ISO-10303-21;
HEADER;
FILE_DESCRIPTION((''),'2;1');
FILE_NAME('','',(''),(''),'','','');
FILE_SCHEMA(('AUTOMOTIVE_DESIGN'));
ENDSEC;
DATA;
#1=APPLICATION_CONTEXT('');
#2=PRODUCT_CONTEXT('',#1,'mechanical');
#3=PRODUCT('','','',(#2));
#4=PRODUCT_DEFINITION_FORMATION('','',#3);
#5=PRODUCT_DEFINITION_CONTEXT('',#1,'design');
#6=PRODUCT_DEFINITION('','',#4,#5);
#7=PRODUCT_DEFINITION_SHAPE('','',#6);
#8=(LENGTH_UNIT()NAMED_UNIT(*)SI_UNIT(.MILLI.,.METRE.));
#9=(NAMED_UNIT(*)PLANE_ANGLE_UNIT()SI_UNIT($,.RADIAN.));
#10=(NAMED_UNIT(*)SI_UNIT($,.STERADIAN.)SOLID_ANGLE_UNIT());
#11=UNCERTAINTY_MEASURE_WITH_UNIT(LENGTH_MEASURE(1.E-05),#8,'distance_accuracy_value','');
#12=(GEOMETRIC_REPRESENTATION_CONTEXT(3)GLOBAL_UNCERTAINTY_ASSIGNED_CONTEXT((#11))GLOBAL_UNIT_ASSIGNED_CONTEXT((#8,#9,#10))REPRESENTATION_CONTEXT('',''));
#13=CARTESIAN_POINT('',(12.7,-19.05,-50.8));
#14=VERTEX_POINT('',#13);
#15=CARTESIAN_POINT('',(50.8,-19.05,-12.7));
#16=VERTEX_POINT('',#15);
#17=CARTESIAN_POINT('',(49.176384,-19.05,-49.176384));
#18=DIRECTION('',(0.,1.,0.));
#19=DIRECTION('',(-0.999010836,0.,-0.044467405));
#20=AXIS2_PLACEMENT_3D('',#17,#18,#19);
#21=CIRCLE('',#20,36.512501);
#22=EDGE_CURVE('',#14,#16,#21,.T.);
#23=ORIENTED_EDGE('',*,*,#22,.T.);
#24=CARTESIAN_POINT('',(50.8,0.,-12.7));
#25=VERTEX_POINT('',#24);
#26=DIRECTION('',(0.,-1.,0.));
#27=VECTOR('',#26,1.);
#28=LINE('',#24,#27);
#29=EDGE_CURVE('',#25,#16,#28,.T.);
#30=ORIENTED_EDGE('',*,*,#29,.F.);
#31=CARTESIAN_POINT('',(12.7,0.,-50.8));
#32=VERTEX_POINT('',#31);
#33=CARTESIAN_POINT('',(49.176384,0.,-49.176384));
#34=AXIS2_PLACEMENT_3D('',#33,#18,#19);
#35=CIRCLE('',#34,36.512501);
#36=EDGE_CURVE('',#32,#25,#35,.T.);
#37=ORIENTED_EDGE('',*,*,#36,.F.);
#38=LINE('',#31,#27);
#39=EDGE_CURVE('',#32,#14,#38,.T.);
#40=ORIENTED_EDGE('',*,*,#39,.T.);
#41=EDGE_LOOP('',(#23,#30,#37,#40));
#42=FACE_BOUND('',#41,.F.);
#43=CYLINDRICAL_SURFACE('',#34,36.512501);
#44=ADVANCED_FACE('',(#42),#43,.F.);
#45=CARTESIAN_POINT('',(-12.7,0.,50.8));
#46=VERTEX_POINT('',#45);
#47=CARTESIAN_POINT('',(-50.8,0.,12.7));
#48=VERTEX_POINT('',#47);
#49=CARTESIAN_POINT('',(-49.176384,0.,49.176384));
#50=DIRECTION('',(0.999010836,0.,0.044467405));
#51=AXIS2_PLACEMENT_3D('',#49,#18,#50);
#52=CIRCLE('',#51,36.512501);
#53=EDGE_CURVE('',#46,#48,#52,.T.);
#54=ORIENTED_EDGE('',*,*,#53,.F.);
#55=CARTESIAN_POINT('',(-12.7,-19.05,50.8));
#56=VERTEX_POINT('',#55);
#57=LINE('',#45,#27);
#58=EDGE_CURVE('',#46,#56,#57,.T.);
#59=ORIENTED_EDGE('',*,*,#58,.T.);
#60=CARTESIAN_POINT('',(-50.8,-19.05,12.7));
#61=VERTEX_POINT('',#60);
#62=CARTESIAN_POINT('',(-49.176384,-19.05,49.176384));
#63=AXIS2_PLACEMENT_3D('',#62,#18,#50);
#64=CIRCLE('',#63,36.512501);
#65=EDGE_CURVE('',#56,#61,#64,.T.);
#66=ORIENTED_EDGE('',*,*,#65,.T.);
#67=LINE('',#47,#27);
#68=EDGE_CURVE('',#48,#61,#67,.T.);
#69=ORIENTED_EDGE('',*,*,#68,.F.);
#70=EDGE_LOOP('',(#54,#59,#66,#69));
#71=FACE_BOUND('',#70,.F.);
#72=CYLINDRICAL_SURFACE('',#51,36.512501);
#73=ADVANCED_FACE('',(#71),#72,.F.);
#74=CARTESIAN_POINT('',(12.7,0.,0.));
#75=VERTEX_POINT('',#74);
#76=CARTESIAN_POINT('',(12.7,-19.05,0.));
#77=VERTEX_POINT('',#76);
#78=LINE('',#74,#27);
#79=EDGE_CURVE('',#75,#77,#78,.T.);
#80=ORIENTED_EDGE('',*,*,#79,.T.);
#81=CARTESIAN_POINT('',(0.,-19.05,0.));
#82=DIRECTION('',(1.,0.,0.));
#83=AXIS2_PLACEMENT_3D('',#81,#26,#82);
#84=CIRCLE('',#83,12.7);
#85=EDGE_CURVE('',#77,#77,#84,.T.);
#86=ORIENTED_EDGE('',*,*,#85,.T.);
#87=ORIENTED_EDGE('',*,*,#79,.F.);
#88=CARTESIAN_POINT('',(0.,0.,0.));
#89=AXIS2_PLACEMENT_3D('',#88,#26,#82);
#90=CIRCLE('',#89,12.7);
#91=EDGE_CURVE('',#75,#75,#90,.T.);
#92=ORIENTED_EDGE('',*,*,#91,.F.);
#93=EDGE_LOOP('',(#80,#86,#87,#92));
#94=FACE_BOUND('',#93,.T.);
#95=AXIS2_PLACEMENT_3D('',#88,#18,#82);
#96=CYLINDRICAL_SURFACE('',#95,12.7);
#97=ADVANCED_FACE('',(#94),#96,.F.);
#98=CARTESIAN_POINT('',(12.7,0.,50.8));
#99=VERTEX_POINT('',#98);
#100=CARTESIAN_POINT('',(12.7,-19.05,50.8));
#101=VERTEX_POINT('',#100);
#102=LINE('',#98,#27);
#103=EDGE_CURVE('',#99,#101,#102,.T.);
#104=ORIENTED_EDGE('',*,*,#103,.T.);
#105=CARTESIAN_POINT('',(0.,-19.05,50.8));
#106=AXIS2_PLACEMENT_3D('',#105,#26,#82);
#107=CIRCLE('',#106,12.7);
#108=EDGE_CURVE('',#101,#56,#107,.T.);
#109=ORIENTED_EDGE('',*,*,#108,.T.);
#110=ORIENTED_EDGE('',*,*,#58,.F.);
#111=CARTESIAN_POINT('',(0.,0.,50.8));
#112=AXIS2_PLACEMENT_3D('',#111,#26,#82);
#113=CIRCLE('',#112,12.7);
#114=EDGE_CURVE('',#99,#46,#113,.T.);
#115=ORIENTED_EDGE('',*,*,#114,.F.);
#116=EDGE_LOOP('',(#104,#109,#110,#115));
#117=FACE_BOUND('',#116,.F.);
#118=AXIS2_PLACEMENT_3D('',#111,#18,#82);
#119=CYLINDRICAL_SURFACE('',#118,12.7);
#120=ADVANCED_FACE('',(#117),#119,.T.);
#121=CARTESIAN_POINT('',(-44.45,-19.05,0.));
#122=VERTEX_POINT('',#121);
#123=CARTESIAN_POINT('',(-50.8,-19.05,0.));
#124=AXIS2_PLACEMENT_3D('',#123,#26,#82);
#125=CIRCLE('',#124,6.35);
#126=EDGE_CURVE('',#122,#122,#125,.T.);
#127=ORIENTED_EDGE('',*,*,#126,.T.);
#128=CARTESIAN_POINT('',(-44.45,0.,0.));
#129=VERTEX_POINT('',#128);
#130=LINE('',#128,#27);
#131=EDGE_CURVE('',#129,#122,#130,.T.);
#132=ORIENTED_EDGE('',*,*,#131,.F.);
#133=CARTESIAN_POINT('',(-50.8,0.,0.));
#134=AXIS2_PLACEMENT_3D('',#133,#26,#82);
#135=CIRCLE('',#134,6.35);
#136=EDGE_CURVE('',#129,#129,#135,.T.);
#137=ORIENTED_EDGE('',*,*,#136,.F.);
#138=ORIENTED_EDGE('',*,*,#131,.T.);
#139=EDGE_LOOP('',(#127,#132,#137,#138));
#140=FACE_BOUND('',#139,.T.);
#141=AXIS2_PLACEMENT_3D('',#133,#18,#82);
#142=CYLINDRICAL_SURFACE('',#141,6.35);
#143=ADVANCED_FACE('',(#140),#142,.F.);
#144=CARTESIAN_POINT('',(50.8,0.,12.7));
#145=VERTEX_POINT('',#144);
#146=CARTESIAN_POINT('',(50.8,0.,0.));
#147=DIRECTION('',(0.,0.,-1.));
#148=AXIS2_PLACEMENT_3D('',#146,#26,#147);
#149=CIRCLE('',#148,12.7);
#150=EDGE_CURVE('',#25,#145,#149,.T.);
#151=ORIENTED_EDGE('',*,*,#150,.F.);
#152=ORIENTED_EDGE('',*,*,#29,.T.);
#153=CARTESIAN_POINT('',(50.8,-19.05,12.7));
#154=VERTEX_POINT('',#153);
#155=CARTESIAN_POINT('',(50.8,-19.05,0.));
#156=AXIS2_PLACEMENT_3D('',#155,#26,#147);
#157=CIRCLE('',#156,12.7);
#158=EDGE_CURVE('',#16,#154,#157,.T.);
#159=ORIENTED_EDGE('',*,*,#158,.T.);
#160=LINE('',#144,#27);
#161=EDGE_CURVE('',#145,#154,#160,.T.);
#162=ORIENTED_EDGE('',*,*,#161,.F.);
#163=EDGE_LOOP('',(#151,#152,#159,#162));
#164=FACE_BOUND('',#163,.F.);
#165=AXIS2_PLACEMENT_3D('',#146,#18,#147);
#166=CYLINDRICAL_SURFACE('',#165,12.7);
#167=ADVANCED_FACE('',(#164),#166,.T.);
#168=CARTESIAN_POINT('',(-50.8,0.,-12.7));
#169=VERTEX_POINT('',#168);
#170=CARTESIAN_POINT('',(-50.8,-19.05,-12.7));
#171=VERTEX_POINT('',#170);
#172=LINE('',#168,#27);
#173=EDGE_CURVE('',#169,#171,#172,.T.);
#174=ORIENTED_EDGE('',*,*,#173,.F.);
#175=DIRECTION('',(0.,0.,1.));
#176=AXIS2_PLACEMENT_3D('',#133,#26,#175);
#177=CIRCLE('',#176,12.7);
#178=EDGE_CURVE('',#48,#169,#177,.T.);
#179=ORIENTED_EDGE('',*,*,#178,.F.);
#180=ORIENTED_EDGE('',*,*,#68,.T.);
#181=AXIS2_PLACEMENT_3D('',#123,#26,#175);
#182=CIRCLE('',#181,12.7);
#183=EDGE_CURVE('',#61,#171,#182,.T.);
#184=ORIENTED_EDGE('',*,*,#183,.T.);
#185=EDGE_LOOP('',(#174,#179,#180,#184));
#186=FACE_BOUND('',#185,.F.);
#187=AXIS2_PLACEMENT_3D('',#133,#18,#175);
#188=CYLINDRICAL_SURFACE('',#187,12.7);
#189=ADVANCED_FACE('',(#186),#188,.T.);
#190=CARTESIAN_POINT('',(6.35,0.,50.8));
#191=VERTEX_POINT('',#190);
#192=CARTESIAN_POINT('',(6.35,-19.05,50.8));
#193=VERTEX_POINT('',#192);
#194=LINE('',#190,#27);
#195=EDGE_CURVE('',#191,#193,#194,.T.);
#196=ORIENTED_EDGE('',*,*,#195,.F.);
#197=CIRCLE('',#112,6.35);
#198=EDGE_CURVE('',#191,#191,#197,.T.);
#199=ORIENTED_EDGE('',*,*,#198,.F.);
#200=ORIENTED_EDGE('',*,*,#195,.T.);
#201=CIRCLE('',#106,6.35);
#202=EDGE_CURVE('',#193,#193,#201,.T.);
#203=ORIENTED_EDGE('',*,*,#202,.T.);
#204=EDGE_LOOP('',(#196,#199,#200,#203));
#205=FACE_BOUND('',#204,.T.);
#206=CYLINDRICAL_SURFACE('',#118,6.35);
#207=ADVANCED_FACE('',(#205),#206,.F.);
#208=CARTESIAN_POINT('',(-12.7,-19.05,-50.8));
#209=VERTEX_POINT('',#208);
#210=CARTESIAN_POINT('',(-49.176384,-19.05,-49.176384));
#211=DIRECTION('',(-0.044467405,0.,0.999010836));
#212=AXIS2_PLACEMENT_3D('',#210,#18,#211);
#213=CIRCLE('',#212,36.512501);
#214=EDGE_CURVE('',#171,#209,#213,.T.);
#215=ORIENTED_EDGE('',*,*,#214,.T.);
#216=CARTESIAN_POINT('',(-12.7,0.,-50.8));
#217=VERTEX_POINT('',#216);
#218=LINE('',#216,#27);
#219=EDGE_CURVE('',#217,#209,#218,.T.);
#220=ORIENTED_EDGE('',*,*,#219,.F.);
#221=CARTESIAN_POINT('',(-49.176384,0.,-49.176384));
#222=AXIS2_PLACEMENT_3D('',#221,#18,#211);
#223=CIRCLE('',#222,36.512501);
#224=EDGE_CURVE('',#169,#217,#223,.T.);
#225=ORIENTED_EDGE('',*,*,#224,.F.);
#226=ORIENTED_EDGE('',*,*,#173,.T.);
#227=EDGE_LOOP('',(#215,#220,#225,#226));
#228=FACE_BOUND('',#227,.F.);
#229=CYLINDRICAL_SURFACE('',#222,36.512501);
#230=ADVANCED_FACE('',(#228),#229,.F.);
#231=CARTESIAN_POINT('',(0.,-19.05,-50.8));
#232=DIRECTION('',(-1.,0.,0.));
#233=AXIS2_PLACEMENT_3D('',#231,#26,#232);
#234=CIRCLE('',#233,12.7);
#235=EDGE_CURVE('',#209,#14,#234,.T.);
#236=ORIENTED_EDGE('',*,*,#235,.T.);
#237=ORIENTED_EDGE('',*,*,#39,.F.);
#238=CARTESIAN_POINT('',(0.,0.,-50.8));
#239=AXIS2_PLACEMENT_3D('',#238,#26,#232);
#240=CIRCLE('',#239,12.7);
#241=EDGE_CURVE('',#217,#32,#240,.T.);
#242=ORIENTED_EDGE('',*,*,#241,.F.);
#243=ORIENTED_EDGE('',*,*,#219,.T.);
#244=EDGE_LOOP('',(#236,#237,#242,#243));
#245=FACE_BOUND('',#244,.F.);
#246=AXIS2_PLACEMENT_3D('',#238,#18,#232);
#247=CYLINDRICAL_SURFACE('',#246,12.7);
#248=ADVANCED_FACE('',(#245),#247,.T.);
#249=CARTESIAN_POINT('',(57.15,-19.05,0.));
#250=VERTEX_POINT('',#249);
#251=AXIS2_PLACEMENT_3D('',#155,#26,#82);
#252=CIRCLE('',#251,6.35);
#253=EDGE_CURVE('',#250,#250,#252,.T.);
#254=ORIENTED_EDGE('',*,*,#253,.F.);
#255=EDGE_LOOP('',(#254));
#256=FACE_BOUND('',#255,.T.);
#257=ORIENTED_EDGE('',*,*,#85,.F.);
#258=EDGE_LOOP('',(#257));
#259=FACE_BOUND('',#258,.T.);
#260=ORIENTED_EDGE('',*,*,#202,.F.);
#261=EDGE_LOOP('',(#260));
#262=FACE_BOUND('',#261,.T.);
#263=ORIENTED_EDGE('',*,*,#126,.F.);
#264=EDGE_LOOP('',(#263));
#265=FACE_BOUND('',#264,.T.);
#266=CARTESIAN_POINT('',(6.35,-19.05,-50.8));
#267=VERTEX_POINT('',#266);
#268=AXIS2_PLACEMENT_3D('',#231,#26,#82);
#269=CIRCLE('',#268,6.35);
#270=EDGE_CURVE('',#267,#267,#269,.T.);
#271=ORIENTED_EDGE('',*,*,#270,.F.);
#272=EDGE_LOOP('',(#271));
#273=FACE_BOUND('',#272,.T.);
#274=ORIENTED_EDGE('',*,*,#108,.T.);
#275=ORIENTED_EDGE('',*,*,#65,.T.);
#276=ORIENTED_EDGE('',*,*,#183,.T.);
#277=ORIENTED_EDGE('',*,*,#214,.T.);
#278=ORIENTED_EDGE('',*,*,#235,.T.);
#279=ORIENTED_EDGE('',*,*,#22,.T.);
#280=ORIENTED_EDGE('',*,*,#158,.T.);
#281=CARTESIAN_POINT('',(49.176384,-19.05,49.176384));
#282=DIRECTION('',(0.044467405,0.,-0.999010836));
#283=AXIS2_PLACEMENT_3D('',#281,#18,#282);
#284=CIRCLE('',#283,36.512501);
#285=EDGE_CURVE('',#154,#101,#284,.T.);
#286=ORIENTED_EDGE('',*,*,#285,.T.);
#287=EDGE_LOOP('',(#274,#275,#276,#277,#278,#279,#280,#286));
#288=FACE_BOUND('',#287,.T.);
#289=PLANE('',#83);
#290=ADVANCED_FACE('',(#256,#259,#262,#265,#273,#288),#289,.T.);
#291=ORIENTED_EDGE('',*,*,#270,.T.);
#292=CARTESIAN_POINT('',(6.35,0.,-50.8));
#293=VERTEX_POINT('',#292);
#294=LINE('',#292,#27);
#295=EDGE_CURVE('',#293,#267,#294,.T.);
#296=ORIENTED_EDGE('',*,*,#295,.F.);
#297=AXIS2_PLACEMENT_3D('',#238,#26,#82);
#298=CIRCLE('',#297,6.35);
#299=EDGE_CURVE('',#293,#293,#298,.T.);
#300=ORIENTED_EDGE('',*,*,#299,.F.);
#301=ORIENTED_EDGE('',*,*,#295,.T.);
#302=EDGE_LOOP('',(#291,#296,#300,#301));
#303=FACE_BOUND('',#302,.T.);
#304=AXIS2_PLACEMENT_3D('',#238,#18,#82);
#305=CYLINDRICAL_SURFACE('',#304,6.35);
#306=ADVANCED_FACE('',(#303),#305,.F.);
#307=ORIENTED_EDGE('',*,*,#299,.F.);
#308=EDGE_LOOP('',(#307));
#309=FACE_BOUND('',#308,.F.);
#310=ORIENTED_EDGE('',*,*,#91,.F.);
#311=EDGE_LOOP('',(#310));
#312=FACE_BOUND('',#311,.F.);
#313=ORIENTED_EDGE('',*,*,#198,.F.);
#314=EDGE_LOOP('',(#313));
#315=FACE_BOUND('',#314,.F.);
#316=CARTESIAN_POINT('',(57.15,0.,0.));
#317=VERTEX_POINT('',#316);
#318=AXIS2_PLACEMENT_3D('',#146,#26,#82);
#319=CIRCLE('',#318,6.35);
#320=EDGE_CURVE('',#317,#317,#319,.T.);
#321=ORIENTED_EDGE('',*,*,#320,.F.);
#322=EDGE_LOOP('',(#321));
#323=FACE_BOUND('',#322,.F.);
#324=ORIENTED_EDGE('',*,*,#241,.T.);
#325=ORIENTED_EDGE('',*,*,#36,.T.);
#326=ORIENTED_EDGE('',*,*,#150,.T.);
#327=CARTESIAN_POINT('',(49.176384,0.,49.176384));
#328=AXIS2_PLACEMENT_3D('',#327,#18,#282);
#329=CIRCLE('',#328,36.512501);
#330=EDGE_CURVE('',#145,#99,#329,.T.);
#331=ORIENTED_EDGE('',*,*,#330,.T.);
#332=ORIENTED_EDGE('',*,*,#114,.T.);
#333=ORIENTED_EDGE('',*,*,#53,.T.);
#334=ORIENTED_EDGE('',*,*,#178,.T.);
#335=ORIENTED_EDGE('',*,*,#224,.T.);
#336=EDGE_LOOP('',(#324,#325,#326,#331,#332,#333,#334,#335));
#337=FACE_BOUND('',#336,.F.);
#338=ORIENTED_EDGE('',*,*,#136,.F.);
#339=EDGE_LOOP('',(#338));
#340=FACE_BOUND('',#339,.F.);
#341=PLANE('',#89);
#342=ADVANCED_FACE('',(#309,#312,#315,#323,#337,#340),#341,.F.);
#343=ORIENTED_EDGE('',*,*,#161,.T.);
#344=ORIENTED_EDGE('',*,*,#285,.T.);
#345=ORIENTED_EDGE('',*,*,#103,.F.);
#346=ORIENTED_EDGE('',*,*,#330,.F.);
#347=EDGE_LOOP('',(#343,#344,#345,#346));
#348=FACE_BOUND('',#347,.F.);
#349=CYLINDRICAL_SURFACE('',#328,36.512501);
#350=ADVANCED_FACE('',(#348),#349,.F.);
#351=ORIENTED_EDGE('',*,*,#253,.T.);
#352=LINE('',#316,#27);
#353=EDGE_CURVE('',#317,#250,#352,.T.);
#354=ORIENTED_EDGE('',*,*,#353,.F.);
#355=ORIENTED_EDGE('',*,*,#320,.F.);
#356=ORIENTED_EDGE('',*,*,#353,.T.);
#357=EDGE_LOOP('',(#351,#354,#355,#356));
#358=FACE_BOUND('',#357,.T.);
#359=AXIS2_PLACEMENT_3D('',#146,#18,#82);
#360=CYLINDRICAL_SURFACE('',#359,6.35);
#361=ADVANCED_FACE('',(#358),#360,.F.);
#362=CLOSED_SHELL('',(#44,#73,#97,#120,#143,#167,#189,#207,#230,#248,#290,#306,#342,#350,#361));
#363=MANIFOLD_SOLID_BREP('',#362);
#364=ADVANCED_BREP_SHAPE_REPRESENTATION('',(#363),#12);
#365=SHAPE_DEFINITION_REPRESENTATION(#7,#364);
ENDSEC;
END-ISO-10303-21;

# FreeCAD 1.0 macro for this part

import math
import FreeCAD as App
import Part
import Sketcher
from FreeCAD import Vector
Q = App.Units.Quantity

doc = App.newDocument("Part")
body = doc.addObject("PartDesign::Body", "Body")

sketch1 = doc.addObject("Sketcher::SketchObject", "Sketch")
body.addObject(sketch1)
sketch1.AttachmentSupport = (doc.XZ_Plane, [""])
sketch1.MapMode = "FlatFace"
sketch1.addGeometry(Part.ArcOfCircle(Part.Circle(Vector(49.176384, 49.176384, 0), Vector(0, 0, 1), 36.512501), math.radians(177.451365), math.radians(272.548635)), False)
sketch1.addGeometry(Part.ArcOfCircle(Part.Circle(Vector(0, 50.8, 0), Vector(0, 0, 1), 12.7), math.radians(0), math.radians(180)), False)
sketch1.addGeometry(Part.ArcOfCircle(Part.Circle(Vector(-49.176384, 49.176384, 0), Vector(0, 0, 1), 36.512501), math.radians(-92.548635), math.radians(2.548635)), False)
sketch1.addGeometry(Part.ArcOfCircle(Part.Circle(Vector(-50.8, 0, 0), Vector(0, 0, 1), 12.7), math.radians(90), math.radians(270)), False)
sketch1.addGeometry(Part.ArcOfCircle(Part.Circle(Vector(-49.176384, -49.176384, 0), Vector(0, 0, 1), 36.512501), math.radians(-2.548635), math.radians(92.548635)), False)
sketch1.addGeometry(Part.ArcOfCircle(Part.Circle(Vector(0, -50.8, 0), Vector(0, 0, 1), 12.7), math.radians(180), math.radians(360)), False)
sketch1.addGeometry(Part.ArcOfCircle(Part.Circle(Vector(49.176384, -49.176384, 0), Vector(0, 0, 1), 36.512501), math.radians(87.451365), math.radians(182.548635)), False)
sketch1.addGeometry(Part.ArcOfCircle(Part.Circle(Vector(50.8, 0, 0), Vector(0, 0, 1), 12.7), math.radians(-90), math.radians(90)), False)
sketch1.addGeometry(Part.Circle(Vector(0, -50.8, 0), Vector(0, 0, 1), 6.35), False)
sketch1.addGeometry(Part.Circle(Vector(-50.8, 0, 0), Vector(0, 0, 1), 6.35), False)
sketch1.addGeometry(Part.Circle(Vector(0, 0, 0), Vector(0, 0, 1), 12.7), False)
sketch1.addGeometry(Part.Circle(Vector(50.8, 0, 0), Vector(0, 0, 1), 6.35), False)
sketch1.addGeometry(Part.Circle(Vector(0, 50.8, 0), Vector(0, 0, 1), 6.35), False)
sketch1.addConstraint(Sketcher.Constraint("Coincident", 0, 1, 1, 1))
sketch1.addConstraint(Sketcher.Constraint("Coincident", 1, 2, 2, 2))
sketch1.addConstraint(Sketcher.Constraint("Coincident", 2, 1, 3, 1))
sketch1.addConstraint(Sketcher.Constraint("Coincident", 3, 2, 4, 2))
sketch1.addConstraint(Sketcher.Constraint("Coincident", 4, 1, 5, 1))
sketch1.addConstraint(Sketcher.Constraint("Coincident", 5, 2, 6, 2))
sketch1.addConstraint(Sketcher.Constraint("Coincident", 6, 1, 7, 1))
sketch1.addConstraint(Sketcher.Constraint("Coincident", 7, 2, 0, 2))
sketch1.addConstraint(Sketcher.Constraint("Coincident", 10, 3, -1, 1))
sketch1.addConstraint(Sketcher.Constraint("Coincident", 8, 3, 5, 3))
sketch1.addConstraint(Sketcher.Constraint("Coincident", 9, 3, 3, 3))
sketch1.addConstraint(Sketcher.Constraint("Coincident", 11, 3, 7, 3))
sketch1.addConstraint(Sketcher.Constraint("Coincident", 12, 3, 1, 3))
sketch1.addConstraint(Sketcher.Constraint("Equal", 0, 2))
sketch1.addConstraint(Sketcher.Constraint("Equal", 1, 3))
sketch1.addConstraint(Sketcher.Constraint("Equal", 2, 4))
sketch1.addConstraint(Sketcher.Constraint("Equal", 3, 5))
sketch1.addConstraint(Sketcher.Constraint("Equal", 4, 6))
sketch1.addConstraint(Sketcher.Constraint("Equal", 5, 7))
sketch1.addConstraint(Sketcher.Constraint("Equal", 8, 9))
sketch1.addConstraint(Sketcher.Constraint("Equal", 7, 10))
sketch1.addConstraint(Sketcher.Constraint("Equal", 9, 11))
sketch1.addConstraint(Sketcher.Constraint("Equal", 11, 12))
sketch1.addConstraint(Sketcher.Constraint("Symmetric", 0, 3, 4, 3, -1, 1))
sketch1.addConstraint(Sketcher.Constraint("Symmetric", 1, 3, 5, 3, -1, 1))
sketch1.addConstraint(Sketcher.Constraint("Symmetric", 2, 3, 6, 3, -1, 1))
sketch1.addConstraint(Sketcher.Constraint("Symmetric", 3, 3, 7, 3, -1, 1))
sketch1.addConstraint(Sketcher.Constraint("Symmetric", 0, 3, 2, 3, -2))
sketch1.addConstraint(Sketcher.Constraint("PointOnObject", 1, 3, -2))
sketch1.addConstraint(Sketcher.Constraint("PointOnObject", 3, 3, -1))
sketch1.addConstraint(Sketcher.Constraint("Horizontal", 12, 3, 0, 1))
sketch1.addConstraint(Sketcher.Constraint("Vertical", 9, 3, 2, 1))
sketch1.addConstraint(Sketcher.Constraint("Diameter", 10, Q("1 in")))
sketch1.addConstraint(Sketcher.Constraint("Diameter", 8, Q("0.5 in")))
sketch1.addConstraint(Sketcher.Constraint("DistanceY", -1, 1, 1, 3, Q("2 in")))
sketch1.addConstraint(Sketcher.Constraint("DistanceX", 3, 3, -1, 1, Q("2 in")))
sketch1.addConstraint(Sketcher.Constraint("Radius", 0, Q("1.4375 in")))
pad1 = doc.addObject("PartDesign::Pad", "Pad")
body.addObject(pad1)
pad1.Profile = sketch1
pad1.Length = Q("0.75 in")

doc.recompute()
